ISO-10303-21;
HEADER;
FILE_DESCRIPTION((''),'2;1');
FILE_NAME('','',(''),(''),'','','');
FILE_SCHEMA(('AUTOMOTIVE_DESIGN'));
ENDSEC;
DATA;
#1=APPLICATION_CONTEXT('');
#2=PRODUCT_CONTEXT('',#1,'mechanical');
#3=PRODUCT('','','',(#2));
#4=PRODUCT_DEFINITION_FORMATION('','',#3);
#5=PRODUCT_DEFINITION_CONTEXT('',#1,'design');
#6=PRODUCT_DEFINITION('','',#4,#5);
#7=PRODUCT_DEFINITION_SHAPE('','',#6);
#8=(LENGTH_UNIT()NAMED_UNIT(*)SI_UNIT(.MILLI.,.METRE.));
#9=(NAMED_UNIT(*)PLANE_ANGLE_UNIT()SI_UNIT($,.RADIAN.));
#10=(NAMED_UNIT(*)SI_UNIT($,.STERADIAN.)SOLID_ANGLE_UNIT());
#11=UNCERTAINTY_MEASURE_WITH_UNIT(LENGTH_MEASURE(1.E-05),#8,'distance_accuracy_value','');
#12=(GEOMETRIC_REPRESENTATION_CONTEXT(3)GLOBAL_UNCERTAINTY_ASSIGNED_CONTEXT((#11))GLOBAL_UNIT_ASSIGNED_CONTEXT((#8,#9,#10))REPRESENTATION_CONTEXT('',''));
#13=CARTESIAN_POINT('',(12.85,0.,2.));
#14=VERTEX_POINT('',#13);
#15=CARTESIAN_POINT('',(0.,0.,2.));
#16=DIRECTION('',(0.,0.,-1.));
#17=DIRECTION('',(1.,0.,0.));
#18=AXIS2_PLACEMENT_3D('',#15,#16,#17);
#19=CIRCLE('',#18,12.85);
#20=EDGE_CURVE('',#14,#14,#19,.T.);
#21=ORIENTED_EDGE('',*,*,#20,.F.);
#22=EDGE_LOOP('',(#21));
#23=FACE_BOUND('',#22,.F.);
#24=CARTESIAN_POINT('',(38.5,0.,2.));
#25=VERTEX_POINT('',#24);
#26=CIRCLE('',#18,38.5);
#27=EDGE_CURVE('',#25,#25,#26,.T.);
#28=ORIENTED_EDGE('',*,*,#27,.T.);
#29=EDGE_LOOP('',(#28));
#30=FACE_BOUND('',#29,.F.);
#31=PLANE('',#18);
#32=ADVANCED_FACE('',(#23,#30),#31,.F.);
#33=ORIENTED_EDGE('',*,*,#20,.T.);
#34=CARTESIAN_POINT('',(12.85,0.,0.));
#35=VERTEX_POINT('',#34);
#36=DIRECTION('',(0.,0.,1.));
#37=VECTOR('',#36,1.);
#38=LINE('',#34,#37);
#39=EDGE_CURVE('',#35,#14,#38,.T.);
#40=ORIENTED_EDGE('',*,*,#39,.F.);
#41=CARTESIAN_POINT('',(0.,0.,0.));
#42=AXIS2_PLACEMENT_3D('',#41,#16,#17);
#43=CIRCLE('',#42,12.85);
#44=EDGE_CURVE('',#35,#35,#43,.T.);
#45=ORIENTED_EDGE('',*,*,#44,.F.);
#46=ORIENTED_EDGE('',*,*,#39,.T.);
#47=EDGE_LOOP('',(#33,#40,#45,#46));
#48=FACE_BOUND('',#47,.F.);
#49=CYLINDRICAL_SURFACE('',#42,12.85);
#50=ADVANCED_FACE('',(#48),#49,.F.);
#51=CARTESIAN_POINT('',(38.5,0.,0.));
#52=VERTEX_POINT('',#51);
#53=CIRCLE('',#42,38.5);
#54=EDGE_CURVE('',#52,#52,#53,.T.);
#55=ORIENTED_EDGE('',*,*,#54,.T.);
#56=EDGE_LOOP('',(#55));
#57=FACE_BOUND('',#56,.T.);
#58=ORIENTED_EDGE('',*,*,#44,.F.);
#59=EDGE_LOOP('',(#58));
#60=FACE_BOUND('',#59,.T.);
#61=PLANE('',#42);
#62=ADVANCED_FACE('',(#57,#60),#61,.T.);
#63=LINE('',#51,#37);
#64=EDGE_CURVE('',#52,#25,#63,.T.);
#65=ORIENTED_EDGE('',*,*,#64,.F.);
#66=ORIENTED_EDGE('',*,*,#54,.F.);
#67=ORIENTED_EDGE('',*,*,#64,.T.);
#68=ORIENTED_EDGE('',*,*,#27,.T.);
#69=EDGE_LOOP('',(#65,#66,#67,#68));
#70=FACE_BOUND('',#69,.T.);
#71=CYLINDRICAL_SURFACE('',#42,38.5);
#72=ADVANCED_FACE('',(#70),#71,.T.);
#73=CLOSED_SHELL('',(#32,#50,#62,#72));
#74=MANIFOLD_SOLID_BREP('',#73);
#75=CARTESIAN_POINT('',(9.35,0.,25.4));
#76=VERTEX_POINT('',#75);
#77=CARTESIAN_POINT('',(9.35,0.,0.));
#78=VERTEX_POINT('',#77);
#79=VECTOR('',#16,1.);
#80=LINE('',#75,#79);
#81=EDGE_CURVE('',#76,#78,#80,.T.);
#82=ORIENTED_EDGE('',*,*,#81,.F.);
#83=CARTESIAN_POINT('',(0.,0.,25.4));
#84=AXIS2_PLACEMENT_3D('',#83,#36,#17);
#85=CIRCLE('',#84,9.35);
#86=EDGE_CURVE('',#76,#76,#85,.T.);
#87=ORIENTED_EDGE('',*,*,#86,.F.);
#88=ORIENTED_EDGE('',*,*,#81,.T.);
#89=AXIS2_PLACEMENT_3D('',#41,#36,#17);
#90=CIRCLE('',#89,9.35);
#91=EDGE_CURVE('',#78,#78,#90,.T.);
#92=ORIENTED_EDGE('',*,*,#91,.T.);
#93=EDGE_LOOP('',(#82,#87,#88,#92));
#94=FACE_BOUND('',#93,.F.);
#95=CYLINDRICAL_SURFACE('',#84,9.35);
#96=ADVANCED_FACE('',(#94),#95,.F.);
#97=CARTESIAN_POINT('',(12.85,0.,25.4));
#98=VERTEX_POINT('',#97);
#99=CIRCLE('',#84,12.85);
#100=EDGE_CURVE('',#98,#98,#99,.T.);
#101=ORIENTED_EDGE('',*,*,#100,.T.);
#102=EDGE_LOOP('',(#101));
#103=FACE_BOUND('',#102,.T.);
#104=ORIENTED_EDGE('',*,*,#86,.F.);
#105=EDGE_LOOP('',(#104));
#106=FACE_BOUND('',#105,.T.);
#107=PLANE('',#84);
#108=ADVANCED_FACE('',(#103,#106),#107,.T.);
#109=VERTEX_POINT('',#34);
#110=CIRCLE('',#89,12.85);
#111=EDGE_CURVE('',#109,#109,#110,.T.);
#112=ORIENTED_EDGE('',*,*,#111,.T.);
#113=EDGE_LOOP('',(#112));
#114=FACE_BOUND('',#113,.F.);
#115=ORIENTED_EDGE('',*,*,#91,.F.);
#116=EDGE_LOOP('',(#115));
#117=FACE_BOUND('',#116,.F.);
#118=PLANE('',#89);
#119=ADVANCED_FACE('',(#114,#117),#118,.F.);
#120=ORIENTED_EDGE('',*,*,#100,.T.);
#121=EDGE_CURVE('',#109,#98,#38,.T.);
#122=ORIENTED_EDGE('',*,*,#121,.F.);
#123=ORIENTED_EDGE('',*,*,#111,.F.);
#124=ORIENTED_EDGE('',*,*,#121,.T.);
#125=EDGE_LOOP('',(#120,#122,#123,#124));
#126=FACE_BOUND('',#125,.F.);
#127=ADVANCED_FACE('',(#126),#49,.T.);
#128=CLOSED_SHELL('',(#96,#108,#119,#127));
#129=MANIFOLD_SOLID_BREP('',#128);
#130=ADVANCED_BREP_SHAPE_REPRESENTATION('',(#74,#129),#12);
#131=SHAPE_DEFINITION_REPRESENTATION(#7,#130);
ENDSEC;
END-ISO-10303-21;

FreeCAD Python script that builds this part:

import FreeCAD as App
import Part
import Sketcher

V = App.Vector

doc = App.newDocument("Part")
body = doc.addObject("PartDesign::Body", "Body")

# Sketch on XY plane
sketch1 = doc.addObject("Sketcher::SketchObject", "Sketch")
body.addObject(sketch1)
sketch1.AttachmentSupport = (doc.XY_Plane, [""])
sketch1.MapMode = "FlatFace"
sketch1.addGeometry(Part.Circle(V(0, 0, 0), V(0, 0, 1), 13), False)
sketch1.addConstraint([
    Sketcher.Constraint("Coincident", 0, 3, -1, 1),
    Sketcher.Constraint("Diameter", 0, 25.7),
])
pad1 = doc.addObject("PartDesign::Pad", "Pad")
body.addObject(pad1)
pad1.Profile = sketch1
pad1.Length = 25.4

# Sketch on XY plane
sketch2 = doc.addObject("Sketcher::SketchObject", "Sketch001")
body.addObject(sketch2)
sketch2.AttachmentSupport = (doc.XY_Plane, [""])
sketch2.MapMode = "FlatFace"
sketch2.AttachmentOffset = App.Placement(V(0, 0, 25.4), App.Rotation())
sketch2.addGeometry(Part.Circle(V(0, 0, 0), V(0, 0, 1), 9), False)
sketch2.addConstraint([
    Sketcher.Constraint("Coincident", 0, 3, -1, 1),
    Sketcher.Constraint("Diameter", 0, 18.7),
])
pocket1 = doc.addObject("PartDesign::Pocket", "Pocket")
body.addObject(pocket1)
pocket1.Profile = sketch2
pocket1.Length = 60
body2 = doc.addObject("PartDesign::Body", "Body001")

# Sketch on XY plane
sketch3 = doc.addObject("Sketcher::SketchObject", "Sketch002")
body2.addObject(sketch3)
sketch3.AttachmentSupport = (doc.getObject("XY_Plane001"), [""])
sketch3.MapMode = "FlatFace"
sketch3.addGeometry([
    Part.Circle(V(0, 0, 0), V(0, 0, 1), 38),
    Part.Circle(V(0, 0, 0), V(0, 0, 1), 13),
], False)
sketch3.addConstraint([
    Sketcher.Constraint("Coincident", 0, 3, -1, 1),
    Sketcher.Constraint("Coincident", 1, 3, -1, 1),
    Sketcher.Constraint("Diameter", 0, 77.0),
    Sketcher.Constraint("Diameter", 1, 25.7),
])
pad2 = doc.addObject("PartDesign::Pad", "Pad001")
body2.addObject(pad2)
pad2.Profile = sketch3
pad2.Length = 2

doc.recompute()
